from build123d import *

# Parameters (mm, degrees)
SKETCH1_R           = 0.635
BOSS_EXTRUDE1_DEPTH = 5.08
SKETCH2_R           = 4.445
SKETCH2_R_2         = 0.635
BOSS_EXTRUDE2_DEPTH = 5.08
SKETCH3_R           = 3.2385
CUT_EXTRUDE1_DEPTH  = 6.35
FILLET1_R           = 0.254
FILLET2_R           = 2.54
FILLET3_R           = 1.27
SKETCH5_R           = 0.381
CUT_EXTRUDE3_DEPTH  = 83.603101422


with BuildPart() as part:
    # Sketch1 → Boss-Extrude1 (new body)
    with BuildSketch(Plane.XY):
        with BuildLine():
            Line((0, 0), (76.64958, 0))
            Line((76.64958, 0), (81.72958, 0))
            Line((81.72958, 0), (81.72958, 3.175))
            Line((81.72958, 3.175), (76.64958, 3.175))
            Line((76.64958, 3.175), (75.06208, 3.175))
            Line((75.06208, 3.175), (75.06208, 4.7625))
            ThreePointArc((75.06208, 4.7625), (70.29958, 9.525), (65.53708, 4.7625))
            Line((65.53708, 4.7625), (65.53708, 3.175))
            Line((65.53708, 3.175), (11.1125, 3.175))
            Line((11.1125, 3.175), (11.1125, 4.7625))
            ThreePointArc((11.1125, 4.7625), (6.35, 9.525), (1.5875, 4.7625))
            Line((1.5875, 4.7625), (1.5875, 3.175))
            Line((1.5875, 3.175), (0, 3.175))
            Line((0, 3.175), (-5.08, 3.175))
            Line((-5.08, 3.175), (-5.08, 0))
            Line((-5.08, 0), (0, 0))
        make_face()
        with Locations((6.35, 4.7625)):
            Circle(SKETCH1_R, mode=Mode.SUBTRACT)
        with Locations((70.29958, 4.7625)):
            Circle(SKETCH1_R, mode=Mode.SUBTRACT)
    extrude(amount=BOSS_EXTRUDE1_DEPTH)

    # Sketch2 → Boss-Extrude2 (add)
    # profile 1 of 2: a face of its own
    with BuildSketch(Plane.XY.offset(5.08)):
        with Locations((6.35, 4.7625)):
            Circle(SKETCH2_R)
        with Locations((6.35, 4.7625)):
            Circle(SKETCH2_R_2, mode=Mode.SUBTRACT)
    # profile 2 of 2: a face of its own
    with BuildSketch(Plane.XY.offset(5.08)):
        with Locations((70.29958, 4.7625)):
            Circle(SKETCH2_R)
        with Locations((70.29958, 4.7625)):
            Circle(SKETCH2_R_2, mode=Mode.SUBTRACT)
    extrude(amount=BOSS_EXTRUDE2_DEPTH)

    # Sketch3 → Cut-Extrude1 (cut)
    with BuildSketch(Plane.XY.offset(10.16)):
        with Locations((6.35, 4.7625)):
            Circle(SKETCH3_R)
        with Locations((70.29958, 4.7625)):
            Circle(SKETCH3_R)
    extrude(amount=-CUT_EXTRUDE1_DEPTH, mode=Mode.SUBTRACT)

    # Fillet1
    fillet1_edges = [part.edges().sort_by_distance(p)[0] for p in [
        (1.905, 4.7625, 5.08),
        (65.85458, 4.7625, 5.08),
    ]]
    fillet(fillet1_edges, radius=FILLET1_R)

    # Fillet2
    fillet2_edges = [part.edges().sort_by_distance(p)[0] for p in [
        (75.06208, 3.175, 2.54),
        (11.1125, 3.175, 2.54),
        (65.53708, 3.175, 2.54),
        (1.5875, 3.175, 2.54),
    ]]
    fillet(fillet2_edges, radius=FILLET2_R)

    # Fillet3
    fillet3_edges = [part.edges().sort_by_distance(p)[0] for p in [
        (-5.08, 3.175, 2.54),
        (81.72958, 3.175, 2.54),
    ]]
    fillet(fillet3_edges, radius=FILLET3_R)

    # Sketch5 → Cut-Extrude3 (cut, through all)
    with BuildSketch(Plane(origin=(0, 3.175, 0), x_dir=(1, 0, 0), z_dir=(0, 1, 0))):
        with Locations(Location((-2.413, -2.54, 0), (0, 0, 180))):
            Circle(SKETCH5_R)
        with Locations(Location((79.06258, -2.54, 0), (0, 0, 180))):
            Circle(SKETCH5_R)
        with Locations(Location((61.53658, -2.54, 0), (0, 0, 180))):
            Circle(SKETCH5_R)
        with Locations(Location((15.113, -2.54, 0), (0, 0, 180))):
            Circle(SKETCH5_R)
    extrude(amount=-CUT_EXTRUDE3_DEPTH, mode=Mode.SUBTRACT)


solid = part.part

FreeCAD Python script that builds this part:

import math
import FreeCAD as App
import Part
import Sketcher
Q = App.Units.Quantity


def edges_at(feature, points):
    """Names of the edges that pass closest to the given points."""
    edges = feature.Shape.Edges
    near = lambda p: min(range(len(edges)), key=lambda i: edges[i].distToShape(Part.Vertex(*p))[0])
    return sorted({f"Edge{near(p) + 1}" for p in points})

doc = App.newDocument("Part")
body = doc.addObject("PartDesign::Body", "Body")

# Sketch on XY plane
sketch1 = doc.addObject("Sketcher::SketchObject", "Sketch")
body.addObject(sketch1)
sketch1.AttachmentSupport = (doc.XY_Plane, [""])
sketch1.MapMode = "FlatFace"
sketch1.addGeometry(Part.LineSegment(App.Vector(81.7, 0, 0), App.Vector(81.7, 3.2, 0)), False)
sketch1.addGeometry(Part.LineSegment(App.Vector(81.7, 3.2, 0), App.Vector(75.1, 3.2, 0)), False)
sketch1.addGeometry(Part.LineSegment(App.Vector(75.1, 3.2, 0), App.Vector(75.1, 4.8, 0)), False)
sketch1.addGeometry(Part.ArcOfCircle(Part.Circle(App.Vector(70.3, 4.8, 0), App.Vector(0, 0, 1), 4.8), math.radians(0), math.radians(180)), False)
sketch1.addGeometry(Part.LineSegment(App.Vector(65.5, 4.8, 0), App.Vector(65.5, 3.2, 0)), False)
sketch1.addGeometry(Part.LineSegment(App.Vector(65.5, 3.2, 0), App.Vector(11.1, 3.2, 0)), False)
sketch1.addGeometry(Part.LineSegment(App.Vector(11.1, 3.2, 0), App.Vector(11.1, 4.8, 0)), False)
sketch1.addGeometry(Part.ArcOfCircle(Part.Circle(App.Vector(6.3, 4.8, 0), App.Vector(0, 0, 1), 4.8), math.radians(0), math.radians(180)), False)
sketch1.addGeometry(Part.LineSegment(App.Vector(1.6, 4.8, 0), App.Vector(1.6, 3.2, 0)), False)
sketch1.addGeometry(Part.LineSegment(App.Vector(1.6, 3.2, 0), App.Vector(-5.1, 3.2, 0)), False)
sketch1.addGeometry(Part.LineSegment(App.Vector(-5.1, 3.2, 0), App.Vector(-5.1, 0, 0)), False)
sketch1.addGeometry(Part.LineSegment(App.Vector(-5.1, 0, 0), App.Vector(81.7, 0, 0)), False)
sketch1.addGeometry(Part.Circle(App.Vector(6.3, 4.8, 0), App.Vector(0, 0, 1), 0.6), False)
sketch1.addGeometry(Part.Circle(App.Vector(70.3, 4.8, 0), App.Vector(0, 0, 1), 0.6), False)
sketch1.addConstraint(Sketcher.Constraint("Coincident", 0, 2, 1, 1))
sketch1.addConstraint(Sketcher.Constraint("Coincident", 1, 2, 2, 1))
sketch1.addConstraint(Sketcher.Constraint("Tangent", 2, 2, 3, 1))
sketch1.addConstraint(Sketcher.Constraint("Tangent", 3, 2, 4, 1))
sketch1.addConstraint(Sketcher.Constraint("Coincident", 4, 2, 5, 1))
sketch1.addConstraint(Sketcher.Constraint("Coincident", 5, 2, 6, 1))
sketch1.addConstraint(Sketcher.Constraint("Tangent", 6, 2, 7, 1))
sketch1.addConstraint(Sketcher.Constraint("Tangent", 7, 2, 8, 1))
sketch1.addConstraint(Sketcher.Constraint("Coincident", 8, 2, 9, 1))
sketch1.addConstraint(Sketcher.Constraint("Coincident", 9, 2, 10, 1))
sketch1.addConstraint(Sketcher.Constraint("Coincident", 10, 2, 11, 1))
sketch1.addConstraint(Sketcher.Constraint("Coincident", 11, 2, 0, 1))
sketch1.addConstraint(Sketcher.Constraint("Vertical", 0))
sketch1.addConstraint(Sketcher.Constraint("Horizontal", 1))
sketch1.addConstraint(Sketcher.Constraint("Vertical", 2))
sketch1.addConstraint(Sketcher.Constraint("Vertical", 4))
sketch1.addConstraint(Sketcher.Constraint("Horizontal", 5))
sketch1.addConstraint(Sketcher.Constraint("Vertical", 6))
sketch1.addConstraint(Sketcher.Constraint("Vertical", 8))
sketch1.addConstraint(Sketcher.Constraint("Horizontal", 9))
sketch1.addConstraint(Sketcher.Constraint("Vertical", 10))
sketch1.addConstraint(Sketcher.Constraint("Horizontal", 11))
sketch1.addConstraint(Sketcher.Constraint("Coincident", 12, 3, 7, 3))
sketch1.addConstraint(Sketcher.Constraint("Coincident", 13, 3, 3, 3))
sketch1.addConstraint(Sketcher.Constraint("Equal", 3, 7))
sketch1.addConstraint(Sketcher.Constraint("Equal", 12, 13))
sketch1.addConstraint(Sketcher.Constraint("PointOnObject", 10, 2, -1))
sketch1.addConstraint(Sketcher.Constraint("Horizontal", 3, 3, 7, 3))
sketch1.addConstraint(Sketcher.Constraint("Horizontal", 1, 2, 4, 2))
sketch1.addConstraint(Sketcher.Constraint("Horizontal", 5, 2, 8, 2))
sketch1.addConstraint(Sketcher.Constraint("Equal", 1, 9))
sketch1.addConstraint(Sketcher.Constraint("Diameter", 12, Q("0.05 in")))
sketch1.addConstraint(Sketcher.Constraint("Radius", 3, Q("0.1875 in")))
sketch1.addConstraint(Sketcher.Constraint("DistanceX", 9, 2, -1, 1, Q("0.2 in")))
sketch1.addConstraint(Sketcher.Constraint("DistanceY", 0, 1, 0, 2, Q("0.125 in")))
sketch1.addConstraint(Sketcher.Constraint("DistanceY", 2, 1, 2, 2, Q("0.0625 in")))
sketch1.addConstraint(Sketcher.Constraint("DistanceX", -1, 1, 7, 3, Q("0.25 in")))
sketch1.addConstraint(Sketcher.Constraint("DistanceX", 5, 2, 5, 1, Q("2.1427 in")))
pad1 = doc.addObject("PartDesign::Pad", "Pad")
body.addObject(pad1)
pad1.Profile = sketch1
pad1.Length = Q("0.2 in")

# Sketch on XY plane
sketch2 = doc.addObject("Sketcher::SketchObject", "Sketch001")
body.addObject(sketch2)
sketch2.AttachmentSupport = (doc.XY_Plane, [""])
sketch2.MapMode = "FlatFace"
sketch2.AttachmentOffset = App.Placement(App.Vector(0, 0, 0.2 * 25.4), App.Rotation())
sketch2.addGeometry(Part.Circle(App.Vector(6.3, 4.8, 0), App.Vector(0, 0, 1), 4.4), False)
sketch2.addGeometry(Part.Circle(App.Vector(6.3, 4.8, 0), App.Vector(0, 0, 1), 0.6), False)
sketch2.addGeometry(Part.Circle(App.Vector(70.3, 4.8, 0), App.Vector(0, 0, 1), 4.4), False)
sketch2.addGeometry(Part.Circle(App.Vector(70.3, 4.8, 0), App.Vector(0, 0, 1), 0.6), False)
sketch2.addConstraint(Sketcher.Constraint("Coincident", 1, 3, 0, 3))
sketch2.addConstraint(Sketcher.Constraint("Coincident", 3, 3, 2, 3))
sketch2.addConstraint(Sketcher.Constraint("Equal", 0, 2))
sketch2.addConstraint(Sketcher.Constraint("Equal", 1, 3))
sketch2.addConstraint(Sketcher.Constraint("Horizontal", 1, 3, 2, 3))
sketch2.addConstraint(Sketcher.Constraint("Diameter", 0, Q("0.35 in")))
sketch2.addConstraint(Sketcher.Constraint("Diameter", 1, Q("0.05 in")))
sketch2.addConstraint(Sketcher.Constraint("DistanceX", -1, 1, 0, 3, Q("0.25 in")))
sketch2.addConstraint(Sketcher.Constraint("DistanceY", -1, 1, 0, 3, Q("0.1875 in")))
sketch2.addConstraint(Sketcher.Constraint("DistanceX", -1, 1, 2, 3, Q("2.7677 in")))
pad2 = doc.addObject("PartDesign::Pad", "Pad001")
body.addObject(pad2)
pad2.Profile = sketch2
pad2.Length = Q("0.2 in")

# Sketch on XY plane
sketch3 = doc.addObject("Sketcher::SketchObject", "Sketch002")
body.addObject(sketch3)
sketch3.AttachmentSupport = (doc.XY_Plane, [""])
sketch3.MapMode = "FlatFace"
sketch3.AttachmentOffset = App.Placement(App.Vector(0, 0, 0.4 * 25.4), App.Rotation())
sketch3.addGeometry(Part.Circle(App.Vector(6.3, 4.8, 0), App.Vector(0, 0, 1), 3.2), False)
sketch3.addGeometry(Part.Circle(App.Vector(70.3, 4.8, 0), App.Vector(0, 0, 1), 3.2), False)
sketch3.addConstraint(Sketcher.Constraint("Equal", 0, 1))
sketch3.addConstraint(Sketcher.Constraint("Horizontal", 0, 3, 1, 3))
sketch3.addConstraint(Sketcher.Constraint("Diameter", 0, Q("0.255 in")))
sketch3.addConstraint(Sketcher.Constraint("DistanceX", -1, 1, 0, 3, Q("0.25 in")))
sketch3.addConstraint(Sketcher.Constraint("DistanceY", -1, 1, 0, 3, Q("0.1875 in")))
sketch3.addConstraint(Sketcher.Constraint("DistanceX", -1, 1, 1, 3, Q("2.7677 in")))
pocket1 = doc.addObject("PartDesign::Pocket", "Pocket")
body.addObject(pocket1)
pocket1.Profile = sketch3
pocket1.Length = Q("0.25 in")
doc.recompute()

fillet = doc.addObject("PartDesign::Fillet", "Fillet")
body.addObject(fillet)
fillet.Base = (pocket1, edges_at(pocket1, [(1.905, 4.763, 5.08), (65.855, 4.763, 5.08)]))
fillet.Radius = Q("0.01 in")
doc.recompute()

fillet2 = doc.addObject("PartDesign::Fillet", "Fillet001")
body.addObject(fillet2)
fillet2.Base = (fillet, edges_at(fillet, [
    (75.062, 3.175, 2.54),
    (11.113, 3.175, 2.54),
    (65.537, 3.175, 2.54),
    (1.587, 3.175, 2.54),
]))
fillet2.Radius = Q("0.1 in")
doc.recompute()

fillet3 = doc.addObject("PartDesign::Fillet", "Fillet002")
body.addObject(fillet3)
fillet3.Base = (fillet2, edges_at(fillet2, [(-5.08, 3.175, 2.54), (81.73, 3.175, 2.54)]))
fillet3.Radius = Q("0.05 in")

# Sketch on XZ plane
sketch4 = doc.addObject("Sketcher::SketchObject", "Sketch003")
body.addObject(sketch4)
sketch4.AttachmentSupport = (doc.XZ_Plane, [""])
sketch4.MapMode = "FlatFace"
sketch4.AttachmentOffset = App.Placement(App.Vector(0, 0, -0.125 * 25.4), App.Rotation())
sketch4.addGeometry(Part.Circle(App.Vector(-2.41, 2.54, 0), App.Vector(0, 0, 1), 0.38), False)
sketch4.addGeometry(Part.Circle(App.Vector(79.06, 2.54, 0), App.Vector(0, 0, 1), 0.38), False)
sketch4.addGeometry(Part.Circle(App.Vector(61.54, 2.54, 0), App.Vector(0, 0, 1), 0.38), False)
sketch4.addGeometry(Part.Circle(App.Vector(15.11, 2.54, 0), App.Vector(0, 0, 1), 0.38), False)
sketch4.addConstraint(Sketcher.Constraint("Equal", 0, 1))
sketch4.addConstraint(Sketcher.Constraint("Equal", 1, 2))
sketch4.addConstraint(Sketcher.Constraint("Equal", 2, 3))
sketch4.addConstraint(Sketcher.Constraint("Horizontal", 0, 3, 1, 3))
sketch4.addConstraint(Sketcher.Constraint("Horizontal", 1, 3, 2, 3))
sketch4.addConstraint(Sketcher.Constraint("Horizontal", 2, 3, 3, 3))
sketch4.addConstraint(Sketcher.Constraint("Diameter", 0, Q("0.03 in")))
sketch4.addConstraint(Sketcher.Constraint("DistanceY", -1, 1, 0, 3, Q("0.1 in")))
sketch4.addConstraint(Sketcher.Constraint("DistanceX", 2, 3, 1, 3, Q("0.69 in")))
sketch4.addConstraint(Sketcher.Constraint("DistanceX", 0, 3, 3, 3, Q("0.69 in")))
sketch4.addConstraint(Sketcher.Constraint("DistanceX", 0, 3, -1, 1, Q("0.095 in")))
sketch4.addConstraint(Sketcher.Constraint("DistanceX", -1, 1, 1, 3, Q("3.1127 in")))
pocket2 = doc.addObject("PartDesign::Pocket", "Pocket001")
body.addObject(pocket2)
pocket2.Profile = sketch4
pocket2.Type = "ThroughAll"
pocket2.Reversed = True

doc.recompute()
